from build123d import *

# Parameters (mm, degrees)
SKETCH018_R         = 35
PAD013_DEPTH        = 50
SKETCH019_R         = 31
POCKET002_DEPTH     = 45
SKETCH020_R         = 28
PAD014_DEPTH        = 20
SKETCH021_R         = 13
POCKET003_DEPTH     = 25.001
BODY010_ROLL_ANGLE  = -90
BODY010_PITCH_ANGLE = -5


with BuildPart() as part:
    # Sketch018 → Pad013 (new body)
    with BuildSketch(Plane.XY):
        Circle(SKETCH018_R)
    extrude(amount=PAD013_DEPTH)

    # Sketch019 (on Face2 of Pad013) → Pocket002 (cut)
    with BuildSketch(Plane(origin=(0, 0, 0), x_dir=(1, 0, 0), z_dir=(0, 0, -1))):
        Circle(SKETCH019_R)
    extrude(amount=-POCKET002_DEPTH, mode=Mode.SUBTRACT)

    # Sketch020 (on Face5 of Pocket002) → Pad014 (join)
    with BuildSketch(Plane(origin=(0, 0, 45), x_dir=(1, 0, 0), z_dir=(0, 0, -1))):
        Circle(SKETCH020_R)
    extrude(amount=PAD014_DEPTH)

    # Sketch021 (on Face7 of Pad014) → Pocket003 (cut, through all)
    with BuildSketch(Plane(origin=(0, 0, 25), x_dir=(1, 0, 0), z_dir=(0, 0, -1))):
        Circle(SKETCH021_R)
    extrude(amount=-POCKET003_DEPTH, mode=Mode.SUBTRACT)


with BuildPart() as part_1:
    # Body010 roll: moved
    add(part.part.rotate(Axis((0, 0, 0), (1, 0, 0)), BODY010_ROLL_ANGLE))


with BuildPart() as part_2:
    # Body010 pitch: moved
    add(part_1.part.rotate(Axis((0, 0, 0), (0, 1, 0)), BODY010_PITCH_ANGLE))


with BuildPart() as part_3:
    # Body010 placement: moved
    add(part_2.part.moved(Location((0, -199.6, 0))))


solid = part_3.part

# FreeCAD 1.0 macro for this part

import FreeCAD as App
import Part
import Sketcher

doc = App.newDocument("Part")
body = doc.addObject("PartDesign::Body", "Body")

# Sketch on XY plane
sketch1 = body.newObject("Sketcher::SketchObject", "Sketch")
sketch1.AttachmentSupport = (doc.getObject("XY_Plane"), [""])
sketch1.MapMode = "FlatFace"
sketch1.addGeometry(Part.Circle(App.Vector(0, 0, 0), App.Vector(0, 0, 1), 35), False)
sketch1.addConstraint(Sketcher.Constraint("Coincident", 0, 3, -1, 1))
sketch1.addConstraint(Sketcher.Constraint("Diameter", 0, 70.0))
pad1 = body.newObject("PartDesign::Pad", "Pad")
pad1.Profile = sketch1
pad1.Length = 50

# Sketch on XY plane
sketch2 = body.newObject("Sketcher::SketchObject", "Sketch001")
sketch2.AttachmentSupport = (doc.getObject("XY_Plane"), [""])
sketch2.MapMode = "FlatFace"
sketch2.addGeometry(Part.Circle(App.Vector(0, 0, 0), App.Vector(0, 0, 1), 31), False)
sketch2.addConstraint(Sketcher.Constraint("Coincident", 0, 3, -1, 1))
sketch2.addConstraint(Sketcher.Constraint("Diameter", 0, 62.0))
pocket1 = body.newObject("PartDesign::Pocket", "Pocket")
pocket1.Profile = sketch2
pocket1.Length = 45
pocket1.Reversed = True

# Sketch on XY plane
sketch3 = body.newObject("Sketcher::SketchObject", "Sketch002")
sketch3.AttachmentSupport = (doc.getObject("XY_Plane"), [""])
sketch3.MapMode = "FlatFace"
sketch3.AttachmentOffset = App.Placement(App.Vector(0, 0, 45), App.Rotation())
sketch3.addGeometry(Part.Circle(App.Vector(0, 0, 0), App.Vector(0, 0, 1), 28), False)
sketch3.addConstraint(Sketcher.Constraint("Coincident", 0, 3, -1, 1))
sketch3.addConstraint(Sketcher.Constraint("Diameter", 0, 56.0))
pad2 = body.newObject("PartDesign::Pad", "Pad001")
pad2.Profile = sketch3
pad2.Length = 20
pad2.Reversed = True

# Sketch on XY plane
sketch4 = body.newObject("Sketcher::SketchObject", "Sketch003")
sketch4.AttachmentSupport = (doc.getObject("XY_Plane"), [""])
sketch4.MapMode = "FlatFace"
sketch4.AttachmentOffset = App.Placement(App.Vector(0, 0, 25), App.Rotation())
sketch4.addGeometry(Part.Circle(App.Vector(0, 0, 0), App.Vector(0, 0, 1), 13), False)
sketch4.addConstraint(Sketcher.Constraint("Coincident", 0, 3, -1, 1))
sketch4.addConstraint(Sketcher.Constraint("Diameter", 0, 26.0))
pocket2 = body.newObject("PartDesign::Pocket", "Pocket001")
pocket2.Profile = sketch4
pocket2.Type = "ThroughAll"
pocket2.Reversed = True
body2 = doc.addObject("PartDesign::Body", "Body001")
doc.recompute()

body.Placement = App.Placement(App.Vector(0, 0, 0), App.Rotation(App.Vector(1, 0, 0), 270))
boolean = body2.newObject("PartDesign::Boolean", "Boolean")
boolean.Type = "Fuse"
boolean.addObjects([body])
body3 = doc.addObject("PartDesign::Body", "Body002")
doc.recompute()

body2.Placement = App.Placement(App.Vector(0, 0, 0), App.Rotation(App.Vector(0, 1, 0), 355))
boolean2 = body3.newObject("PartDesign::Boolean", "Boolean001")
boolean2.Type = "Fuse"
boolean2.addObjects([body2])
body4 = doc.addObject("PartDesign::Body", "Body003")
doc.recompute()

body3.Placement = App.Placement(App.Vector(0, -199.6, 0), App.Rotation(App.Vector(0, 0, 1), 0))
boolean3 = body4.newObject("PartDesign::Boolean", "Boolean002")
boolean3.Type = "Fuse"
boolean3.addObjects([body3])

doc.recompute()
